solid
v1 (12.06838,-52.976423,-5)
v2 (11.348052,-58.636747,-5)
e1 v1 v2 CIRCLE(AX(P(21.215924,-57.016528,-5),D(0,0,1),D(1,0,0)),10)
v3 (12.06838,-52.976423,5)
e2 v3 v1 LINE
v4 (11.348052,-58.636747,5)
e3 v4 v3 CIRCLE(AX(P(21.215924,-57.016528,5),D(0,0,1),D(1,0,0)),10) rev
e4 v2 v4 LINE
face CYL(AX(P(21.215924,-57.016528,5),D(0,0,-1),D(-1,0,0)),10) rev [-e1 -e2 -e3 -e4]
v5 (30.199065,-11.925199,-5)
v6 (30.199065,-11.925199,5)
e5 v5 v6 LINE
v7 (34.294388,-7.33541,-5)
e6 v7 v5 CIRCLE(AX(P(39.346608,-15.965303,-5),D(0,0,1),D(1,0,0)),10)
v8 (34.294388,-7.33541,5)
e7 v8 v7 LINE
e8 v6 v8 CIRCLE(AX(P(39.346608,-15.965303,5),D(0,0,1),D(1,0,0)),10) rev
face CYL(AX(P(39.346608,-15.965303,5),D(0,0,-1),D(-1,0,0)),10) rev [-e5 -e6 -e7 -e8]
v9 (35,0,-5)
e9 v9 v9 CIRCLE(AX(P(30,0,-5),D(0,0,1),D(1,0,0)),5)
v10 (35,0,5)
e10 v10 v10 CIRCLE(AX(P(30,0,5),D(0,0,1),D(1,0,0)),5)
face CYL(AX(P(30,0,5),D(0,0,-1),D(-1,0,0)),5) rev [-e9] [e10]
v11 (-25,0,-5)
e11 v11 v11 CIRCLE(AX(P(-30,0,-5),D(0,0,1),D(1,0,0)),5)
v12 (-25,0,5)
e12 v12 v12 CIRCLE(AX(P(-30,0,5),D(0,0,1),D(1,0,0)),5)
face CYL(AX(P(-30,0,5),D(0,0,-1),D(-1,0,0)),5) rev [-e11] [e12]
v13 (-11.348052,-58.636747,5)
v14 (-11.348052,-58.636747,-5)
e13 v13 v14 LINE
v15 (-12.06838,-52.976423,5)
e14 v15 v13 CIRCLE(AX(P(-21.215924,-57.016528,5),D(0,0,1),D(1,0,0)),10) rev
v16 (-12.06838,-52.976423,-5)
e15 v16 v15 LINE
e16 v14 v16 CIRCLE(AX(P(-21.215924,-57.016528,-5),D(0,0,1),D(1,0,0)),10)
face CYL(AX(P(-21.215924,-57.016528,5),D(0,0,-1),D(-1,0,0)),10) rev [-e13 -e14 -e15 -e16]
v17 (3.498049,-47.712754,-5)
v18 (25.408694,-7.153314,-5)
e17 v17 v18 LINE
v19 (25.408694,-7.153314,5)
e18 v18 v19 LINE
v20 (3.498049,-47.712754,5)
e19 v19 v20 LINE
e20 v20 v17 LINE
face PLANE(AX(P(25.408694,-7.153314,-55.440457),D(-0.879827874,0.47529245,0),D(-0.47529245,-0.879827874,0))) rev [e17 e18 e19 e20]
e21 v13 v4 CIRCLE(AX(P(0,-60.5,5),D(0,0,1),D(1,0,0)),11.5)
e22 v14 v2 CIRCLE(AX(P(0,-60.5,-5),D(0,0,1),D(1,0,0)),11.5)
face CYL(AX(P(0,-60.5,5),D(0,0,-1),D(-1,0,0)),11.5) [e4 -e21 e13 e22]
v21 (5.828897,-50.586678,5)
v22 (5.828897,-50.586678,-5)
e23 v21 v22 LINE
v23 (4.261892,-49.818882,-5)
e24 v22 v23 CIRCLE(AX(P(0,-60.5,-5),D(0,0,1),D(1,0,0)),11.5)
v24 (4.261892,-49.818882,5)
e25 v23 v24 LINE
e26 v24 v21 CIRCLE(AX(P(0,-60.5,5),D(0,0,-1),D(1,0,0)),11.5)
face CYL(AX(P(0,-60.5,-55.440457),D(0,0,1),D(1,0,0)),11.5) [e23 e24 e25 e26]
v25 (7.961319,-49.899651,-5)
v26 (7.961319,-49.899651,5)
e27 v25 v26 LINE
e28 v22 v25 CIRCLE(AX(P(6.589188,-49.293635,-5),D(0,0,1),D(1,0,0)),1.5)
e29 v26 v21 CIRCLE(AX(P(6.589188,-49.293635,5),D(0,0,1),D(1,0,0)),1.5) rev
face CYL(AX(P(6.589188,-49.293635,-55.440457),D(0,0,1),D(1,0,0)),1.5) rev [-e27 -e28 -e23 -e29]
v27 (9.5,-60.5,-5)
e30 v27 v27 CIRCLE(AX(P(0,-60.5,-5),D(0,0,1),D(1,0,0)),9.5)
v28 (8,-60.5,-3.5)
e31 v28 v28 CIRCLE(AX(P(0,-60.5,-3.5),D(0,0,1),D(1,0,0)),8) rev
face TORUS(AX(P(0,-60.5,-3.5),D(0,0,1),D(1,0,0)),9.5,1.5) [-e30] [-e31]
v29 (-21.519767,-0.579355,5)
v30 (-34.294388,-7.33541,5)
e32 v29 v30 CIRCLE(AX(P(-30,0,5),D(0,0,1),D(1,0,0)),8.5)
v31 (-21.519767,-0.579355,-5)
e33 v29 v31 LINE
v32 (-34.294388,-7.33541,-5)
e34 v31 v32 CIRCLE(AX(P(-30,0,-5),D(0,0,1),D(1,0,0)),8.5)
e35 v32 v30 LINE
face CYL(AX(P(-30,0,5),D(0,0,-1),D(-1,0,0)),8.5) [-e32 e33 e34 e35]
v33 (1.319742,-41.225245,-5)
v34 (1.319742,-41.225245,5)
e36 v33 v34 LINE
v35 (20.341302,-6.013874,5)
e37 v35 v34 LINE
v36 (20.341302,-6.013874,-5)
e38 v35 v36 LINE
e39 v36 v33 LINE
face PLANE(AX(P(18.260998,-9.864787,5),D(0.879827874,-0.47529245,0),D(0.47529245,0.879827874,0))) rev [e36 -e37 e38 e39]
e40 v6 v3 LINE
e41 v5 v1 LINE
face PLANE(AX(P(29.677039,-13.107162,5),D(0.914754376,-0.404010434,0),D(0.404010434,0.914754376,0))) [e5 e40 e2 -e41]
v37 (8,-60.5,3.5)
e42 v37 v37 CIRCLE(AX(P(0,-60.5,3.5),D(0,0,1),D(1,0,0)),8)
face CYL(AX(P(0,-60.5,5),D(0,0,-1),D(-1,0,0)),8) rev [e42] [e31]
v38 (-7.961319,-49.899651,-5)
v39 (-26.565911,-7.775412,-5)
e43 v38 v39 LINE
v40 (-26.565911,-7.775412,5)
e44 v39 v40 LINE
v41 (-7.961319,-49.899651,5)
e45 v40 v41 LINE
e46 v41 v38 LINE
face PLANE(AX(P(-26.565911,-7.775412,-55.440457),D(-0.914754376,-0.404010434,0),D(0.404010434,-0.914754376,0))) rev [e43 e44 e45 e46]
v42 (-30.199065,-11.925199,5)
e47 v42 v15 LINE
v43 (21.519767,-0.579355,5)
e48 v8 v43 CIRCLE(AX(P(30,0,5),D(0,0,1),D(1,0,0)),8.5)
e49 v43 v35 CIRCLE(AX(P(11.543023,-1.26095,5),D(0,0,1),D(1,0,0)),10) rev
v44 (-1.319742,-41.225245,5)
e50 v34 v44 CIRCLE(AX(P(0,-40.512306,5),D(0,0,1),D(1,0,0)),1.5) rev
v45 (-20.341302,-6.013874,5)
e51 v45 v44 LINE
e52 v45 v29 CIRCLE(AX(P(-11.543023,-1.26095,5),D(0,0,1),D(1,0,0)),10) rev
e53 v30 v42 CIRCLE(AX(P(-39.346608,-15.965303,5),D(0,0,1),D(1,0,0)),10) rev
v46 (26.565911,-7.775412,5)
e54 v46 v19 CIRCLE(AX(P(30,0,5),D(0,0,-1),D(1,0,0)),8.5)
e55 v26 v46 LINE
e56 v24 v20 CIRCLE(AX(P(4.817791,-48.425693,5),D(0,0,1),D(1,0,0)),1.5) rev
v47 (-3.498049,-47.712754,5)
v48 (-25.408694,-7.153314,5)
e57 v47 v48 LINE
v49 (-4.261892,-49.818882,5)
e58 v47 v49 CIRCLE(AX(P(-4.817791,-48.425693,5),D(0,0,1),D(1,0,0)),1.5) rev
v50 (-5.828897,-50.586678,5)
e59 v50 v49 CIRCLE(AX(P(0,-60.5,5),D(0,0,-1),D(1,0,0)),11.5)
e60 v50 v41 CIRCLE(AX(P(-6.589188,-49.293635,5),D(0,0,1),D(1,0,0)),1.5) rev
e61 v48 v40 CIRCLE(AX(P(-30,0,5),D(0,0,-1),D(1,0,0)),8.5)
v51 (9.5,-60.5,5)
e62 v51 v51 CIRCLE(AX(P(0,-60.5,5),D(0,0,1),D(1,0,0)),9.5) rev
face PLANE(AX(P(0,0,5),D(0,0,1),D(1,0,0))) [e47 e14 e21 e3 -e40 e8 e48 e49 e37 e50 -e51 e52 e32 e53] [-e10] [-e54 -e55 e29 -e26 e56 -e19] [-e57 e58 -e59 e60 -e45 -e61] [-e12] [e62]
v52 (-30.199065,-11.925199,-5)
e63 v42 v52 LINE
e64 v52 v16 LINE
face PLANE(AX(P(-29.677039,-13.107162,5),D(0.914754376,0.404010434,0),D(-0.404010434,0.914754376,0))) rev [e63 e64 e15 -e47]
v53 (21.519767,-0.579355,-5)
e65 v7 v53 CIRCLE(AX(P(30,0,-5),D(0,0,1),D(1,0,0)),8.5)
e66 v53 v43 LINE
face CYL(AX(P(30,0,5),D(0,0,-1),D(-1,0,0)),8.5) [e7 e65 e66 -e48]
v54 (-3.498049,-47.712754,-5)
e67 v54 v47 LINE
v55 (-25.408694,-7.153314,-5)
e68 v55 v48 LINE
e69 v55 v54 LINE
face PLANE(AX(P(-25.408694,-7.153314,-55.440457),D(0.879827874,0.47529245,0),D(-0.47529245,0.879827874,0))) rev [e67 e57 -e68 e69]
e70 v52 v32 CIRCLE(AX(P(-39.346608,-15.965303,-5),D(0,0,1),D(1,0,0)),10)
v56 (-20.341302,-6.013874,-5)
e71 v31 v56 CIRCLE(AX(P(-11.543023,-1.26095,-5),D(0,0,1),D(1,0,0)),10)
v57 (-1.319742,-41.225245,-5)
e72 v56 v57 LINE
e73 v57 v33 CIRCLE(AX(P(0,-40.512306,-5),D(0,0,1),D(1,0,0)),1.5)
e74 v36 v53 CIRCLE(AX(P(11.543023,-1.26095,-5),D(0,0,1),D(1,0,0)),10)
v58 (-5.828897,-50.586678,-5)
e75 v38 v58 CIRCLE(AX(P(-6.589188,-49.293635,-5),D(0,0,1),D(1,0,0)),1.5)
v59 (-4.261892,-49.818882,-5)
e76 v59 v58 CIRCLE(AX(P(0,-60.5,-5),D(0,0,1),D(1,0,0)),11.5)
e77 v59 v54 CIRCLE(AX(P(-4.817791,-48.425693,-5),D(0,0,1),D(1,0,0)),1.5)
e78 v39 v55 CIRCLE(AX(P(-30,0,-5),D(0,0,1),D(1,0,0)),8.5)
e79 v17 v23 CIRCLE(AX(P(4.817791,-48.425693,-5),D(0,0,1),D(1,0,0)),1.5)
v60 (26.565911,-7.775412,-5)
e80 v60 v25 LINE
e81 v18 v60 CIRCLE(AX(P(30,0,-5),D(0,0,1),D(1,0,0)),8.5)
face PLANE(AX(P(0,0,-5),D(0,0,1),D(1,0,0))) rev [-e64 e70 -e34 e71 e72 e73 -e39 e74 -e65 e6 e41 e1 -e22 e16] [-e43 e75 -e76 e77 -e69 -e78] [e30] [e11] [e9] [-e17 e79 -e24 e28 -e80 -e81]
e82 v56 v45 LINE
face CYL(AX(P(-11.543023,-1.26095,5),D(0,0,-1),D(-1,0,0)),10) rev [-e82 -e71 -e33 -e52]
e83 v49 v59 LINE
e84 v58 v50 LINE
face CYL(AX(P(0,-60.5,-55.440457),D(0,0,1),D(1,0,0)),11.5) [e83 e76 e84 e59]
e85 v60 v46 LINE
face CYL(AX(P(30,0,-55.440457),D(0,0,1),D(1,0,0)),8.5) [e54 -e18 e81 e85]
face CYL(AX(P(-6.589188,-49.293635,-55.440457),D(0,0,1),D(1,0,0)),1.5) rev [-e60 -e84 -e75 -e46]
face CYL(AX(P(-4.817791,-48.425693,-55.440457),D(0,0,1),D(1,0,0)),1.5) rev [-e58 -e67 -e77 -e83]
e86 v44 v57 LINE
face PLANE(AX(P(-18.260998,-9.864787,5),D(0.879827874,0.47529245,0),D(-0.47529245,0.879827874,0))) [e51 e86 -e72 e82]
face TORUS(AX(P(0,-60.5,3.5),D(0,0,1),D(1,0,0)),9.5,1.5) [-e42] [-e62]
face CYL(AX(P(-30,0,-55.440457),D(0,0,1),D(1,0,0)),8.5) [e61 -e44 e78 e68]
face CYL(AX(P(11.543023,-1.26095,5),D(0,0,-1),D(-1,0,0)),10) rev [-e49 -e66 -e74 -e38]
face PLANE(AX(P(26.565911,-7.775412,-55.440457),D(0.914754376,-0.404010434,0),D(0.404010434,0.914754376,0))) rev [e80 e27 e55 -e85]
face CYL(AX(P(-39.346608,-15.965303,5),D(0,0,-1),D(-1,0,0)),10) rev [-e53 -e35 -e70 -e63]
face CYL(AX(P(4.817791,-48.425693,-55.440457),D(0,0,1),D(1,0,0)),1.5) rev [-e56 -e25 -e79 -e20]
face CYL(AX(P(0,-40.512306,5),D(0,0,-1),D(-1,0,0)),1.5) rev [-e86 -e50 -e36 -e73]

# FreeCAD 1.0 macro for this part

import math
import FreeCAD as App
import Part
import Sketcher
from FreeCAD import Vector


def edges_at(feature, points):
    """Names of the edges that pass closest to the given points."""
    edges = feature.Shape.Edges
    near = lambda p: min(range(len(edges)), key=lambda i: edges[i].distToShape(Part.Vertex(*p))[0])
    return sorted({f"Edge{near(p) + 1}" for p in points})

doc = App.newDocument("Part")
body = doc.addObject("PartDesign::Body", "Body")

sketch1 = body.newObject("Sketcher::SketchObject", "Sketch")
sketch1.AttachmentSupport = (doc.getObject("XY_Plane"), [""])
sketch1.MapMode = "FlatFace"
sketch1.addGeometry([
    Part.LineSegment(Vector(-31.796659, -8.307949, 0), Vector(-10.655709, -56.174972, 0)),
    Part.ArcOfCircle(Part.Circle(Vector(0, -60.5, 0), Vector(0, 0, 1), 11.5), math.radians(157.908341), math.radians(382.091659)),
    Part.LineSegment(Vector(10.655709, -56.174972, 0), Vector(31.796659, -8.307949, 0)),
    Part.ArcOfCircle(Part.Circle(Vector(30, 0, 0), Vector(0, 0, 1), 8.5), math.radians(-77.797252), math.radians(200.055219)),
    Part.LineSegment(Vector(22.015418, -2.914868, 0), Vector(0, -43.668258, 0)),
    Part.LineSegment(Vector(0, -43.668258, 0), Vector(-22.015418, -2.914868, 0)),
    Part.ArcOfCircle(Part.Circle(Vector(-30, 0, 0), Vector(0, 0, 1), 8.5), math.radians(-20.055219), math.radians(257.797252)),
    Part.Circle(Vector(0, -60.5, 0), Vector(0, 0, 1), 8),
    Part.Circle(Vector(-30, 0, 0), Vector(0, 0, 1), 5),
    Part.Circle(Vector(30, 0, 0), Vector(0, 0, 1), 5),
], False)
sketch1.addConstraint([
    Sketcher.Constraint("Coincident", 0, 2, 1, 1),
    Sketcher.Constraint("Coincident", 1, 2, 2, 1),
    Sketcher.Constraint("Coincident", 2, 2, 3, 1),
    Sketcher.Constraint("Coincident", 3, 2, 4, 1),
    Sketcher.Constraint("Coincident", 4, 2, 5, 1),
    Sketcher.Constraint("Coincident", 5, 2, 6, 1),
    Sketcher.Constraint("Coincident", 6, 2, 0, 1),
    Sketcher.Constraint("Coincident", 7, 3, 1, 3),
    Sketcher.Constraint("Coincident", 8, 3, 6, 3),
    Sketcher.Constraint("Coincident", 9, 3, 3, 3),
    Sketcher.Constraint("Equal", 3, 6),
    Sketcher.Constraint("Equal", 8, 9),
    Sketcher.Constraint("Symmetric", 3, 3, 6, 3, -1, 1),
    Sketcher.Constraint("Symmetric", 0, 2, 1, 2, -2),
    Sketcher.Constraint("Symmetric", 3, 2, 5, 2, -2),
    Sketcher.Constraint("PointOnObject", 4, 2, -2),
    Sketcher.Constraint("Horizontal", 2, 2, 6, 2),
    Sketcher.Constraint("Diameter", 7, 16.0),
    Sketcher.Constraint("Diameter", 8, 10.0),
    Sketcher.Constraint("Radius", 1, 11.5),
    Sketcher.Constraint("Radius", 3, 8.5),
    Sketcher.Constraint("DistanceX", -1, 1, 3, 3, 30.0),
    Sketcher.Constraint("DistanceY", 1, 3, -1, 1, 60.5),
    Sketcher.Constraint("Distance", 4, 46.319731),
    Sketcher.Constraint("DistanceX", 0, 2, -1, 1, 10.655709),
    Sketcher.Constraint("DistanceX", -1, 1, 2, 2, 31.796659),
    Sketcher.Constraint("DistanceX", -1, 1, 3, 2, 22.015418),
])
pad1 = body.newObject("PartDesign::Pad", "Pad")
pad1.Profile = sketch1
pad1.Length = 10
pad1.Midplane = True
doc.recompute()

fillet = body.newObject("PartDesign::Fillet", "Fillet")
fillet.Base = (pad1, edges_at(pad1, [
    (22.015, -2.915, 0),
    (31.797, -8.308, 0),
    (10.656, -56.175, 0),
    (-10.656, -56.175, 0),
    (-31.797, -8.308, 0),
    (-22.015, -2.915, 0),
]))
fillet.Radius = 10

sketch2 = body.newObject("Sketcher::SketchObject", "Sketch001")
sketch2.AttachmentSupport = (doc.getObject("XY_Plane"), [""])
sketch2.MapMode = "FlatFace"
sketch2.AttachmentOffset = App.Placement(Vector(0, 0, 5), App.Rotation())
sketch2.addGeometry([
    Part.LineSegment(Vector(-26.565911, -7.775412, 0), Vector(-7.229507, -51.55661, 0)),
    Part.ArcOfCircle(Part.Circle(Vector(0, -60.5, 0), Vector(0, 0, 1), 11.5), math.radians(103.256728), math.radians(128.950796)),
    Part.LineSegment(Vector(-2.637119, -49.306448, 0), Vector(-25.408694, -7.153314, 0)),
    Part.ArcOfCircle(Part.Circle(Vector(-30, 0, 0), Vector(0, 0, 1), 8.5), math.radians(-66.170869), math.radians(-57.305898)),
    Part.LineSegment(Vector(25.408694, -7.153314, 0), Vector(2.637119, -49.306448, 0)),
    Part.ArcOfCircle(Part.Circle(Vector(0, -60.5, 0), Vector(0, 0, 1), 11.5), math.radians(51.049204), math.radians(76.743272)),
    Part.LineSegment(Vector(7.229507, -51.55661, 0), Vector(26.565911, -7.775412, 0)),
    Part.ArcOfCircle(Part.Circle(Vector(30, 0, 0), Vector(0, 0, 1), 8.5), math.radians(-122.694102), math.radians(-113.829131)),
], False)
sketch2.addConstraint([
    Sketcher.Constraint("Coincident", 0, 2, 1, 2),
    Sketcher.Constraint("Coincident", 1, 1, 2, 1),
    Sketcher.Constraint("Coincident", 2, 2, 3, 2),
    Sketcher.Constraint("Coincident", 3, 1, 0, 1),
    Sketcher.Constraint("Coincident", 4, 2, 5, 2),
    Sketcher.Constraint("Coincident", 5, 1, 6, 1),
    Sketcher.Constraint("Coincident", 6, 2, 7, 2),
    Sketcher.Constraint("Coincident", 7, 1, 4, 1),
    Sketcher.Constraint("Coincident", 5, 3, 1, 3),
    Sketcher.Constraint("Equal", 1, 5),
    Sketcher.Constraint("Equal", 3, 7),
    Sketcher.Constraint("Symmetric", 3, 3, 7, 3, -1, 1),
    Sketcher.Constraint("Symmetric", 1, 1, 4, 2, -2),
    Sketcher.Constraint("Symmetric", 3, 1, 6, 2, -2),
    Sketcher.Constraint("Horizontal", 0, 2, 5, 1),
    Sketcher.Constraint("Horizontal", 2, 2, 7, 1),
    Sketcher.Constraint("Radius", 1, 11.5),
    Sketcher.Constraint("Radius", 3, 8.5),
    Sketcher.Constraint("DistanceX", 3, 3, -1, 1, 30.0),
    Sketcher.Constraint("DistanceY", 1, 3, -1, 1, 60.5),
    Sketcher.Constraint("Distance", 0, 47.861151),
    Sketcher.Constraint("Distance", 2, 47.91066),
    Sketcher.Constraint("DistanceX", 1, 1, -1, 1, 2.637119),
    Sketcher.Constraint("DistanceX", 3, 1, -1, 1, 26.565911),
])
pocket1 = body.newObject("PartDesign::Pocket", "Pocket")
pocket1.Profile = sketch2
pocket1.Length = 10
doc.recompute()

fillet2 = body.newObject("PartDesign::Fillet", "Fillet001")
fillet2.Base = (pocket1, edges_at(pocket1, [
    (-8, -60.5, -5),
    (0, -43.668, 0),
    (-8, -60.5, 5),
    (7.23, -51.557, 0),
    (2.637, -49.306, 0),
    (-2.637, -49.306, 0),
    (-7.23, -51.557, 0),
]))
fillet2.Radius = 1.5

doc.recompute()
